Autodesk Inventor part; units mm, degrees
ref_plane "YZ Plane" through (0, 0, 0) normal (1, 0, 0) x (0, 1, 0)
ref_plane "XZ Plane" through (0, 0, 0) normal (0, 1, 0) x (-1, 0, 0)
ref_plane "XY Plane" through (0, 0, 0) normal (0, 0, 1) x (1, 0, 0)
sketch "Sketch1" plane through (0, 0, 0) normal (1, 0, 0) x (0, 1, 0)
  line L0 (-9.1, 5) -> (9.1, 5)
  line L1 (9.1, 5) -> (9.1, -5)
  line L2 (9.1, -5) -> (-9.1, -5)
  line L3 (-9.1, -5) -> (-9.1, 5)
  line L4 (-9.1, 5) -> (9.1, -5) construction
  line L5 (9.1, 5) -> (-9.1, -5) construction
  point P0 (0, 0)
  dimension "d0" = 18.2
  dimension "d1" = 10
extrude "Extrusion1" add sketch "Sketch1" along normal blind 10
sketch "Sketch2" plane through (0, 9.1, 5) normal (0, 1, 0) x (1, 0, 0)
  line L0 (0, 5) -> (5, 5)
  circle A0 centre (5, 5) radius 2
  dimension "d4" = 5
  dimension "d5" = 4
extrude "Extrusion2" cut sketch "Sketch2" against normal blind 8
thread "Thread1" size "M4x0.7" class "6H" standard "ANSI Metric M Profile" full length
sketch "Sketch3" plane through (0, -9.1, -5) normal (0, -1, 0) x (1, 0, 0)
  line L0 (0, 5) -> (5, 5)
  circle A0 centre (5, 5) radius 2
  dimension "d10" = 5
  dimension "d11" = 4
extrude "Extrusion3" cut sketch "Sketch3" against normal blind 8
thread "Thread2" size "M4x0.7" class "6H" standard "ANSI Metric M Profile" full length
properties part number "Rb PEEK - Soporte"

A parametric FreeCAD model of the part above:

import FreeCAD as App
import Part
import Sketcher
Q = App.Units.Quantity


def add_polygon(sketch, points):
    """Adds a closed chain of lines whose ends are joined by coincident constraints."""
    first, n = sketch.GeometryCount, len(points)
    for a, b in zip(points, points[1:] + points[:1]):
        sketch.addGeometry(Part.LineSegment(App.Vector(*a, 0), App.Vector(*b, 0)), False)
    for i in range(n):
        sketch.addConstraint(Sketcher.Constraint("Coincident", first + i, 2, first + (i + 1) % n, 1))

doc = App.newDocument("Part")
params = doc.addObject("Spreadsheet::Sheet", "Params")
for row, (alias, value) in enumerate([
    ("sketch1_height", "10 mm"),
    ("sketch1_width", "18.2 mm"),
    ("pad1_length", "10 mm"),
    ("sketch2_diameter", "4 mm"),
    ("pocket1_length", "8 mm"),
    ("sketch3_diameter", "4 mm"),
    ("pocket2_length", "8 mm"),
], start=1):
    params.set(f"A{row}", alias)
    params.set(f"B{row}", "=" + value)
    params.setAlias(f"B{row}", alias)

body = doc.addObject("PartDesign::Body", "Body")

sketch1 = body.newObject("Sketcher::SketchObject", "Sketch")
sketch1.AttachmentSupport = (doc.getObject("YZ_Plane"), [""])
sketch1.MapMode = "FlatFace"
add_polygon(sketch1, [(9, 5), (-9, 5), (-9, -5), (9, -5)])
sketch1.addConstraint(Sketcher.Constraint("Horizontal", 0))
sketch1.addConstraint(Sketcher.Constraint("Vertical", 1))
sketch1.addConstraint(Sketcher.Constraint("Horizontal", 2))
sketch1.addConstraint(Sketcher.Constraint("Vertical", 3))
sketch1.addConstraint(Sketcher.Constraint("Symmetric", 0, 2, 2, 2, -1, 1))
sketch1.addConstraint(Sketcher.Constraint("DistanceY", 1, 2, 1, 1, Q("10 mm")))
sketch1.addConstraint(Sketcher.Constraint("DistanceX", 0, 2, 0, 1, Q("18.2 mm")))
sketch1.setExpression("Constraints[9]", "Params.sketch1_height")
sketch1.setExpression("Constraints[10]", "Params.sketch1_width")
pad1 = body.newObject("PartDesign::Pad", "Pad")
pad1.Profile = sketch1
pad1.setExpression("Length", "Params.pad1_length")

sketch2 = body.newObject("Sketcher::SketchObject", "Sketch001")
sketch2.AttachmentSupport = (doc.getObject("XZ_Plane"), [""])
sketch2.MapMode = "FlatFace"
sketch2.AttachmentOffset = App.Placement(App.Vector(0, 0, -9.1), App.Rotation())
sketch2.addGeometry(Part.Circle(App.Vector(5, 0, 0), App.Vector(0, 0, 1), 2), False)
sketch2.addConstraint(Sketcher.Constraint("PointOnObject", 0, 3, -1))
sketch2.addConstraint(Sketcher.Constraint("Diameter", 0, Q("4 mm")))
sketch2.addConstraint(Sketcher.Constraint("DistanceX", -1, 1, 0, 3, Q("5 mm")))
sketch2.setExpression("Constraints[1]", "Params.sketch2_diameter")
pocket1 = body.newObject("PartDesign::Pocket", "Pocket")
pocket1.Profile = sketch2
pocket1.setExpression("Length", "Params.pocket1_length")
pocket1.Reversed = True

sketch3 = body.newObject("Sketcher::SketchObject", "Sketch002")
sketch3.AttachmentSupport = (doc.getObject("XZ_Plane"), [""])
sketch3.MapMode = "FlatFace"
sketch3.AttachmentOffset = App.Placement(App.Vector(0, 0, 9.1), App.Rotation())
sketch3.addGeometry(Part.Circle(App.Vector(5, 0, 0), App.Vector(0, 0, 1), 2), False)
sketch3.addConstraint(Sketcher.Constraint("PointOnObject", 0, 3, -1))
sketch3.addConstraint(Sketcher.Constraint("Diameter", 0, Q("4 mm")))
sketch3.addConstraint(Sketcher.Constraint("DistanceX", -1, 1, 0, 3, Q("5 mm")))
sketch3.setExpression("Constraints[1]", "Params.sketch3_diameter")
pocket2 = body.newObject("PartDesign::Pocket", "Pocket001")
pocket2.Profile = sketch3
pocket2.setExpression("Length", "Params.pocket2_length")

doc.recompute()
